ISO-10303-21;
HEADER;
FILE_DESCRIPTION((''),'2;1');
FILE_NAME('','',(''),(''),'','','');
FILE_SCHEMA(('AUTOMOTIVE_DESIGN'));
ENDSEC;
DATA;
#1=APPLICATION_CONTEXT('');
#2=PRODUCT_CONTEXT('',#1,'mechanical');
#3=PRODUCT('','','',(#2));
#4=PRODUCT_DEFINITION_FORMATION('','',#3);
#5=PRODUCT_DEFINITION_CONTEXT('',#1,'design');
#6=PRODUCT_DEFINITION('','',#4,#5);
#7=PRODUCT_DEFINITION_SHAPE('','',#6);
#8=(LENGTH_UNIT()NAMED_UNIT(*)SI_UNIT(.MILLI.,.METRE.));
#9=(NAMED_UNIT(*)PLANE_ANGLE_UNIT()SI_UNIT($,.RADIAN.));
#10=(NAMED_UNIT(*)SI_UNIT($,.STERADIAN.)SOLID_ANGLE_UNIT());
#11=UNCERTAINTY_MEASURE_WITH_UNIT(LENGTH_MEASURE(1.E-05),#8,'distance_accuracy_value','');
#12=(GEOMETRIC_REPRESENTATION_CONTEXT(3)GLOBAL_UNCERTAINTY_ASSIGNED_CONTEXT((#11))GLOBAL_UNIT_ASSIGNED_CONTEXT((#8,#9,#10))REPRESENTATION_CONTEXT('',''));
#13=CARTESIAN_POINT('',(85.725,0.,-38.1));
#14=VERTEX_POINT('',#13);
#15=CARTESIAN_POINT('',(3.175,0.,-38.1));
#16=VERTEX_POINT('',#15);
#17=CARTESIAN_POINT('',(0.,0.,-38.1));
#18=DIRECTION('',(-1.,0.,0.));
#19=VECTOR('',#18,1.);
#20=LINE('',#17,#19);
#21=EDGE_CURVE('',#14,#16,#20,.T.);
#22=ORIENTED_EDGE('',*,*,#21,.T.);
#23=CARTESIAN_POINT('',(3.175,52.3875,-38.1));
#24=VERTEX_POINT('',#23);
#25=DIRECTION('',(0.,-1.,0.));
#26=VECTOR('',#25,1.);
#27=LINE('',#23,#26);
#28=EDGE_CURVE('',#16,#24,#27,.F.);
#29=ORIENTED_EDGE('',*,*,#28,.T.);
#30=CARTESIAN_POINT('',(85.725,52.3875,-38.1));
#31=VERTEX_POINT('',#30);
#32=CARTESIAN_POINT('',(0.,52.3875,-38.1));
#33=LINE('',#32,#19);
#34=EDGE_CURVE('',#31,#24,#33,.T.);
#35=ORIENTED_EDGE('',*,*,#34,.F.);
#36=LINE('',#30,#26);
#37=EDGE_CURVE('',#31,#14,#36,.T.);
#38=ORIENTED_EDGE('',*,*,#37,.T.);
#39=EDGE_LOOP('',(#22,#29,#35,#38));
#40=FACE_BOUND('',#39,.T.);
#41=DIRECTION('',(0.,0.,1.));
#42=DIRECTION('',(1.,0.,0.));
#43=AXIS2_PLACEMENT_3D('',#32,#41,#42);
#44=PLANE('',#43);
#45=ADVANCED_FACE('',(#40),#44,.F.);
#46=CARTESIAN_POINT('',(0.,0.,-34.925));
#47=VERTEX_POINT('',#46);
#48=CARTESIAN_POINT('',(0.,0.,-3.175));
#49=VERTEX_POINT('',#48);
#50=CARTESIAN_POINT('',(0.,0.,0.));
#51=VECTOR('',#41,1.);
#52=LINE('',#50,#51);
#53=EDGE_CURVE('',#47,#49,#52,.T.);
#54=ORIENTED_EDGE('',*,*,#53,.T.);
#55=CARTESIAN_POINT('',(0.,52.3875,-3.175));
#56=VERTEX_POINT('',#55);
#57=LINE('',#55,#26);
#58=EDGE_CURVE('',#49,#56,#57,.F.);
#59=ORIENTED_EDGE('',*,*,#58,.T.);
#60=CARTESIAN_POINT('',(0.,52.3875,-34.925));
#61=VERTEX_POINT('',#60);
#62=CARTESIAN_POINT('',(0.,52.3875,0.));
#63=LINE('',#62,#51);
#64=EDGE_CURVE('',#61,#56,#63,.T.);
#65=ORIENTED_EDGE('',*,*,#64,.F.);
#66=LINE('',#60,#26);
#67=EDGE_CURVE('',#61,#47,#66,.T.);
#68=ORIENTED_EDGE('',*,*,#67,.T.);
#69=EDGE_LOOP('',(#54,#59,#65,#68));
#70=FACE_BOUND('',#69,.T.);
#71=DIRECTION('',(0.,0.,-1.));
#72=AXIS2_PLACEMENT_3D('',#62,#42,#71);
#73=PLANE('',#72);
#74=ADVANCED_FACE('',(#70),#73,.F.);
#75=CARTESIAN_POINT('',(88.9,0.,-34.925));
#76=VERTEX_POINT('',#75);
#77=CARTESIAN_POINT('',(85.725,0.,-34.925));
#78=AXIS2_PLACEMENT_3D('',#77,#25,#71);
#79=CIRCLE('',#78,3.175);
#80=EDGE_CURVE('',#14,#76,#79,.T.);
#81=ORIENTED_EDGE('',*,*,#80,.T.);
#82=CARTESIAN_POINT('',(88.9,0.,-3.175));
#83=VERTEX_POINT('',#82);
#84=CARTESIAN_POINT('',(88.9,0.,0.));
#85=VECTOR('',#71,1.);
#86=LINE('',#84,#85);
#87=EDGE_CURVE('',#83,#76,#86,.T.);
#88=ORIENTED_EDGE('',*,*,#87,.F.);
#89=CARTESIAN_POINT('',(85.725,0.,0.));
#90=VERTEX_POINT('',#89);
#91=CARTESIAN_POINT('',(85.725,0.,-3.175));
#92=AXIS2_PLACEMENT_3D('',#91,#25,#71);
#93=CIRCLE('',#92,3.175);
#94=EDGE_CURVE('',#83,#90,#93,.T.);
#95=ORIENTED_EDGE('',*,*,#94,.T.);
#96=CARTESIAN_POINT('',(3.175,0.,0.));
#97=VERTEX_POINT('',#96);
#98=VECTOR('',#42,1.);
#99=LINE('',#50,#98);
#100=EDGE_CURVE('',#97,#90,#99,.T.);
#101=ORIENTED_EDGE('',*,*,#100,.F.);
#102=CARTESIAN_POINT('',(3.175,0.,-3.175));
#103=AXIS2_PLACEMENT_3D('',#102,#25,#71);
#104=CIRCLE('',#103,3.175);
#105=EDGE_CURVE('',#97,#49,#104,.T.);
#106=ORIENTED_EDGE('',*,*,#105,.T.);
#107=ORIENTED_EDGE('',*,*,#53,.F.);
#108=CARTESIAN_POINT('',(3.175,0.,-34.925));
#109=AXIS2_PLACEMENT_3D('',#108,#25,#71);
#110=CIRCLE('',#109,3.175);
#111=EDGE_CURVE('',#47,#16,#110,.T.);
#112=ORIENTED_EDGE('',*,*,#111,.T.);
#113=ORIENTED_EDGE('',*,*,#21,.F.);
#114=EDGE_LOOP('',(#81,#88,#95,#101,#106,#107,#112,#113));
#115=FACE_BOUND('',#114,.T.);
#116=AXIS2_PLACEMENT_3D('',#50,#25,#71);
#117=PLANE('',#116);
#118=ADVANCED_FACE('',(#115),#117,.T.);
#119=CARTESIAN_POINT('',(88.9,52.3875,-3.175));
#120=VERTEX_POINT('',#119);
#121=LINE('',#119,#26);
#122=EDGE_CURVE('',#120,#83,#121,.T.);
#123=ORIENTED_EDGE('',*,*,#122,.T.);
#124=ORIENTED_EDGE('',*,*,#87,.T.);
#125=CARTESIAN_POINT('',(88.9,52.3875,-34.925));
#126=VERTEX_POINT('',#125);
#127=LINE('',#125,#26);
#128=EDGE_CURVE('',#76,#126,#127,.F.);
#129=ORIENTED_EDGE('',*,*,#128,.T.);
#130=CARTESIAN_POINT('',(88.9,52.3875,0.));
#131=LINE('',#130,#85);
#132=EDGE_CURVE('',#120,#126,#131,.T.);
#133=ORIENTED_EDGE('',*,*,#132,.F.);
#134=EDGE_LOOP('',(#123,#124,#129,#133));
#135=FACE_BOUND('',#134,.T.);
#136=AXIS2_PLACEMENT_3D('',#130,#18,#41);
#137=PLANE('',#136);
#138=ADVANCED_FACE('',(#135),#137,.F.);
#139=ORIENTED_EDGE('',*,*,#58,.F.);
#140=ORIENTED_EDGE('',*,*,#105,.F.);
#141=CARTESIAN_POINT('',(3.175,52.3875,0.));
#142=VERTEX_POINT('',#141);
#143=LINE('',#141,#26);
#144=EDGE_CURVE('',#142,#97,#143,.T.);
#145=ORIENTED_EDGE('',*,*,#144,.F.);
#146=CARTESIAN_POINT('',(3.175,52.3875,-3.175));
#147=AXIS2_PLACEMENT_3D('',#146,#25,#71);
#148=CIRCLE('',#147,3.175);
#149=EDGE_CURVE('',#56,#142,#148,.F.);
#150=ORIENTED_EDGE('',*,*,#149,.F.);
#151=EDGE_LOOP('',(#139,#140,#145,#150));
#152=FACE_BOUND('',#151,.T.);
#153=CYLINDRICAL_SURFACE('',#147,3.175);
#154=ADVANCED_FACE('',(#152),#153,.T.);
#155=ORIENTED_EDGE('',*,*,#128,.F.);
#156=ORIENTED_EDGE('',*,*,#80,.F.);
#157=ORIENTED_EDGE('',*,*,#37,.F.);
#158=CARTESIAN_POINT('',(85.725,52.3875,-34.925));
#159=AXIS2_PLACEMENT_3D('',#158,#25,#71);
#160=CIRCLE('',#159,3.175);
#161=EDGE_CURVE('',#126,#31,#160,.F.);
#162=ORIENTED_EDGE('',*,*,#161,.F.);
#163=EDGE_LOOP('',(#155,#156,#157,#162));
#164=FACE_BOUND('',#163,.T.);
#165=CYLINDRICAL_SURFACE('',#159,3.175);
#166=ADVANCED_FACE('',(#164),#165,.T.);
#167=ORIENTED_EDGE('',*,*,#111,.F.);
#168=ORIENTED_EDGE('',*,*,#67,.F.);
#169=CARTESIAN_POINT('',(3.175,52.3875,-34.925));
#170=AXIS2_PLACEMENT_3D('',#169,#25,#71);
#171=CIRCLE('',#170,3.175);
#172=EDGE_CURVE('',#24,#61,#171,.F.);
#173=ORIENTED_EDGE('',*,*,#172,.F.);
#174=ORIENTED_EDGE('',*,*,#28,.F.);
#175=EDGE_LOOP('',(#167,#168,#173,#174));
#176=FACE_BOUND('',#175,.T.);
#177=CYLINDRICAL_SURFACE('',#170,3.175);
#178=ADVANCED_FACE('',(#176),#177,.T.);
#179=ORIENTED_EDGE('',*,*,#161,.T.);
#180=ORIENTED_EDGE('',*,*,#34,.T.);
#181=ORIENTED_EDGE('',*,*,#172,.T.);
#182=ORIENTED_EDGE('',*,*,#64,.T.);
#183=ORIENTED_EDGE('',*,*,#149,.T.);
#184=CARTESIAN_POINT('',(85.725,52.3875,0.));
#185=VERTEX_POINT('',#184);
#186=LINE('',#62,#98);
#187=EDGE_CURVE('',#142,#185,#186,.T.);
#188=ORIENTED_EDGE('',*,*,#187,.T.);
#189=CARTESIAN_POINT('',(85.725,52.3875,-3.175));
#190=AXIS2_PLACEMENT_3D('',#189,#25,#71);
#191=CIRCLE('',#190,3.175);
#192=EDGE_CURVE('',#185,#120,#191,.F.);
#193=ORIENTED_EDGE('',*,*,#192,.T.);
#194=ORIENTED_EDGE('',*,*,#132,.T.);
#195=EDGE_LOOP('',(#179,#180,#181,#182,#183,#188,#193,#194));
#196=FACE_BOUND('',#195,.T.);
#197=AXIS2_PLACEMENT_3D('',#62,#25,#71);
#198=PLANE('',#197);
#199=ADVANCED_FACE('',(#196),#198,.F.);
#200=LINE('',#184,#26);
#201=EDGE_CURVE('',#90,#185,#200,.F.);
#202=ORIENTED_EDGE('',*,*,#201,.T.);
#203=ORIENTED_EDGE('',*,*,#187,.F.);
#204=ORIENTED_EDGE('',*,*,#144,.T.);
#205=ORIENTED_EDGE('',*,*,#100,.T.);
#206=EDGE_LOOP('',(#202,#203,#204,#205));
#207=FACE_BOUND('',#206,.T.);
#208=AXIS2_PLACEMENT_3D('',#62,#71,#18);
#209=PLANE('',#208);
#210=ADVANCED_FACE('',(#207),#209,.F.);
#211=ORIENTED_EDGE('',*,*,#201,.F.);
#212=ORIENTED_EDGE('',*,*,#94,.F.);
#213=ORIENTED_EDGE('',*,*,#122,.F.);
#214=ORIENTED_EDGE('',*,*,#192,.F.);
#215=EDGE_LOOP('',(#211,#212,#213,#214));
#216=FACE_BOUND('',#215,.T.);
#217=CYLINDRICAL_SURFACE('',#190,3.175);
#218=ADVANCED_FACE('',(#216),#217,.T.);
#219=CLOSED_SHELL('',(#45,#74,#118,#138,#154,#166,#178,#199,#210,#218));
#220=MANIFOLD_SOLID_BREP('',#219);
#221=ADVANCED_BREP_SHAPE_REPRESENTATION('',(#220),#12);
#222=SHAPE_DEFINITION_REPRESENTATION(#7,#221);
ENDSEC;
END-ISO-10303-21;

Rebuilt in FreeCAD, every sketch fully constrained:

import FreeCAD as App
import Part
import Sketcher

V = App.Vector
Q = App.Units.Quantity


def edges_at(feature, points):
    """Names of the edges that pass closest to the given points."""
    edges = feature.Shape.Edges
    near = lambda p: min(range(len(edges)), key=lambda i: edges[i].distToShape(Part.Vertex(*p))[0])
    return sorted({f"Edge{near(p) + 1}" for p in points})

doc = App.newDocument("Part")
body = doc.addObject("PartDesign::Body", "Body")

sketch1 = body.newObject("Sketcher::SketchObject", "Sketch")
sketch1.AttachmentSupport = (doc.getObject("XZ_Plane"), [""])
sketch1.MapMode = "FlatFace"
sketch1.addGeometry(Part.LineSegment(V(0, -38, 0), V(0, 0, 0)), False)
sketch1.addGeometry(Part.LineSegment(V(0, 0, 0), V(89, 0, 0)), False)
sketch1.addGeometry(Part.LineSegment(V(89, 0, 0), V(89, -38, 0)), False)
sketch1.addGeometry(Part.LineSegment(V(89, -38, 0), V(0, -38, 0)), False)
sketch1.addConstraint(Sketcher.Constraint("Coincident", 0, 2, 1, 1))
sketch1.addConstraint(Sketcher.Constraint("Coincident", 1, 2, 2, 1))
sketch1.addConstraint(Sketcher.Constraint("Coincident", 2, 2, 3, 1))
sketch1.addConstraint(Sketcher.Constraint("Coincident", 3, 2, 0, 1))
sketch1.addConstraint(Sketcher.Constraint("Vertical", 0))
sketch1.addConstraint(Sketcher.Constraint("Horizontal", 1))
sketch1.addConstraint(Sketcher.Constraint("Vertical", 2))
sketch1.addConstraint(Sketcher.Constraint("Horizontal", 3))
sketch1.addConstraint(Sketcher.Constraint("Coincident", 0, 2, -1, 1))
sketch1.addConstraint(Sketcher.Constraint("DistanceX", 1, 1, 1, 2, Q("3.5 in")))
sketch1.addConstraint(Sketcher.Constraint("DistanceY", 0, 1, 0, 2, Q("1.5 in")))
pad1 = body.newObject("PartDesign::Pad", "Pad")
pad1.Profile = sketch1
pad1.Length = Q("2.0625 in")
pad1.Reversed = True
doc.recompute()

fillet = body.newObject("PartDesign::Fillet", "Fillet")
fillet.Base = (pad1, edges_at(pad1, [
    (0, 26.194, -38.1),
    (88.9, 26.194, -38.1),
    (88.9, 26.194, 0),
    (0, 26.194, 0),
]))
fillet.Radius = Q("0.125 in")

doc.recompute()
